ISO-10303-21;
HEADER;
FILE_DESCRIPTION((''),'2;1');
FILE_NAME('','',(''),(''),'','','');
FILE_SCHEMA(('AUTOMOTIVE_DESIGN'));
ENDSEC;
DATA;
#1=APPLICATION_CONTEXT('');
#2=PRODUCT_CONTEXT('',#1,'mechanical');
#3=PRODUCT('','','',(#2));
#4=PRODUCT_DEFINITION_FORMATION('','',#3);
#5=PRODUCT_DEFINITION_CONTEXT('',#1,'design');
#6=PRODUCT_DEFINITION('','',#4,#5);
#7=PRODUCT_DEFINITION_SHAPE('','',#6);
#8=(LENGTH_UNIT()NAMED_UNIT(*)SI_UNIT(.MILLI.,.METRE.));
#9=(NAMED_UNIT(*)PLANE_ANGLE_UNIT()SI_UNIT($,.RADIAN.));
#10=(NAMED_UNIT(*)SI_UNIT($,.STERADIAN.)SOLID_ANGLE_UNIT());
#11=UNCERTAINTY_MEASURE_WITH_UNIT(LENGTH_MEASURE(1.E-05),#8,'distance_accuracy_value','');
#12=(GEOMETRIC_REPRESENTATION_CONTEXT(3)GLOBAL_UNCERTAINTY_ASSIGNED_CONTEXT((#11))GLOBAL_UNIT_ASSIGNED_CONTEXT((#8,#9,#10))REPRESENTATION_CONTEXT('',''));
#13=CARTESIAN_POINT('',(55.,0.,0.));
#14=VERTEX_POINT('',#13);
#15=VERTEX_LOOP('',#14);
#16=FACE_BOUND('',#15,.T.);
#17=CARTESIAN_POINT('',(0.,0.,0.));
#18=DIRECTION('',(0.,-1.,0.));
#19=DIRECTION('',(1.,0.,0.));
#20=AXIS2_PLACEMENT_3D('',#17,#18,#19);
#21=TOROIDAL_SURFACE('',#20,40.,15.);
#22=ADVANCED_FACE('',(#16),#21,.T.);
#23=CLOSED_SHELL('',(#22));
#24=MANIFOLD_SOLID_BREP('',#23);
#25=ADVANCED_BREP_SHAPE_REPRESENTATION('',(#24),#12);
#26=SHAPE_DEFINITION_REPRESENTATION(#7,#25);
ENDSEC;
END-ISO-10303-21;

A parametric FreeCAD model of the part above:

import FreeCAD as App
import Part
import Sketcher

V = App.Vector
Q = App.Units.Quantity

doc = App.newDocument("Part")
body = doc.addObject("PartDesign::Body", "Body")

sketch1 = doc.addObject("Sketcher::SketchObject", "Sketch")
body.addObject(sketch1)
sketch1.AttachmentSupport = (doc.XY_Plane, [""])
sketch1.MapMode = "FlatFace"
sketch1.addGeometry(Part.Circle(V(-40, 0, 0), V(0, 0, 1), 15), False)
sketch1.addConstraint([
    Sketcher.Constraint("PointOnObject", 0, 3, -1),
    Sketcher.Constraint("Diameter", 0, Q("30 mm")),
    Sketcher.Constraint("DistanceX", 0, 3, -1, 1, Q("40 mm")),
])
revolution = doc.addObject("PartDesign::Revolution", "Revolution")
body.addObject(revolution)
revolution.Profile = sketch1
revolution.ReferenceAxis = (sketch1, ["V_Axis"])
revolution.Angle = 360

doc.recompute()
